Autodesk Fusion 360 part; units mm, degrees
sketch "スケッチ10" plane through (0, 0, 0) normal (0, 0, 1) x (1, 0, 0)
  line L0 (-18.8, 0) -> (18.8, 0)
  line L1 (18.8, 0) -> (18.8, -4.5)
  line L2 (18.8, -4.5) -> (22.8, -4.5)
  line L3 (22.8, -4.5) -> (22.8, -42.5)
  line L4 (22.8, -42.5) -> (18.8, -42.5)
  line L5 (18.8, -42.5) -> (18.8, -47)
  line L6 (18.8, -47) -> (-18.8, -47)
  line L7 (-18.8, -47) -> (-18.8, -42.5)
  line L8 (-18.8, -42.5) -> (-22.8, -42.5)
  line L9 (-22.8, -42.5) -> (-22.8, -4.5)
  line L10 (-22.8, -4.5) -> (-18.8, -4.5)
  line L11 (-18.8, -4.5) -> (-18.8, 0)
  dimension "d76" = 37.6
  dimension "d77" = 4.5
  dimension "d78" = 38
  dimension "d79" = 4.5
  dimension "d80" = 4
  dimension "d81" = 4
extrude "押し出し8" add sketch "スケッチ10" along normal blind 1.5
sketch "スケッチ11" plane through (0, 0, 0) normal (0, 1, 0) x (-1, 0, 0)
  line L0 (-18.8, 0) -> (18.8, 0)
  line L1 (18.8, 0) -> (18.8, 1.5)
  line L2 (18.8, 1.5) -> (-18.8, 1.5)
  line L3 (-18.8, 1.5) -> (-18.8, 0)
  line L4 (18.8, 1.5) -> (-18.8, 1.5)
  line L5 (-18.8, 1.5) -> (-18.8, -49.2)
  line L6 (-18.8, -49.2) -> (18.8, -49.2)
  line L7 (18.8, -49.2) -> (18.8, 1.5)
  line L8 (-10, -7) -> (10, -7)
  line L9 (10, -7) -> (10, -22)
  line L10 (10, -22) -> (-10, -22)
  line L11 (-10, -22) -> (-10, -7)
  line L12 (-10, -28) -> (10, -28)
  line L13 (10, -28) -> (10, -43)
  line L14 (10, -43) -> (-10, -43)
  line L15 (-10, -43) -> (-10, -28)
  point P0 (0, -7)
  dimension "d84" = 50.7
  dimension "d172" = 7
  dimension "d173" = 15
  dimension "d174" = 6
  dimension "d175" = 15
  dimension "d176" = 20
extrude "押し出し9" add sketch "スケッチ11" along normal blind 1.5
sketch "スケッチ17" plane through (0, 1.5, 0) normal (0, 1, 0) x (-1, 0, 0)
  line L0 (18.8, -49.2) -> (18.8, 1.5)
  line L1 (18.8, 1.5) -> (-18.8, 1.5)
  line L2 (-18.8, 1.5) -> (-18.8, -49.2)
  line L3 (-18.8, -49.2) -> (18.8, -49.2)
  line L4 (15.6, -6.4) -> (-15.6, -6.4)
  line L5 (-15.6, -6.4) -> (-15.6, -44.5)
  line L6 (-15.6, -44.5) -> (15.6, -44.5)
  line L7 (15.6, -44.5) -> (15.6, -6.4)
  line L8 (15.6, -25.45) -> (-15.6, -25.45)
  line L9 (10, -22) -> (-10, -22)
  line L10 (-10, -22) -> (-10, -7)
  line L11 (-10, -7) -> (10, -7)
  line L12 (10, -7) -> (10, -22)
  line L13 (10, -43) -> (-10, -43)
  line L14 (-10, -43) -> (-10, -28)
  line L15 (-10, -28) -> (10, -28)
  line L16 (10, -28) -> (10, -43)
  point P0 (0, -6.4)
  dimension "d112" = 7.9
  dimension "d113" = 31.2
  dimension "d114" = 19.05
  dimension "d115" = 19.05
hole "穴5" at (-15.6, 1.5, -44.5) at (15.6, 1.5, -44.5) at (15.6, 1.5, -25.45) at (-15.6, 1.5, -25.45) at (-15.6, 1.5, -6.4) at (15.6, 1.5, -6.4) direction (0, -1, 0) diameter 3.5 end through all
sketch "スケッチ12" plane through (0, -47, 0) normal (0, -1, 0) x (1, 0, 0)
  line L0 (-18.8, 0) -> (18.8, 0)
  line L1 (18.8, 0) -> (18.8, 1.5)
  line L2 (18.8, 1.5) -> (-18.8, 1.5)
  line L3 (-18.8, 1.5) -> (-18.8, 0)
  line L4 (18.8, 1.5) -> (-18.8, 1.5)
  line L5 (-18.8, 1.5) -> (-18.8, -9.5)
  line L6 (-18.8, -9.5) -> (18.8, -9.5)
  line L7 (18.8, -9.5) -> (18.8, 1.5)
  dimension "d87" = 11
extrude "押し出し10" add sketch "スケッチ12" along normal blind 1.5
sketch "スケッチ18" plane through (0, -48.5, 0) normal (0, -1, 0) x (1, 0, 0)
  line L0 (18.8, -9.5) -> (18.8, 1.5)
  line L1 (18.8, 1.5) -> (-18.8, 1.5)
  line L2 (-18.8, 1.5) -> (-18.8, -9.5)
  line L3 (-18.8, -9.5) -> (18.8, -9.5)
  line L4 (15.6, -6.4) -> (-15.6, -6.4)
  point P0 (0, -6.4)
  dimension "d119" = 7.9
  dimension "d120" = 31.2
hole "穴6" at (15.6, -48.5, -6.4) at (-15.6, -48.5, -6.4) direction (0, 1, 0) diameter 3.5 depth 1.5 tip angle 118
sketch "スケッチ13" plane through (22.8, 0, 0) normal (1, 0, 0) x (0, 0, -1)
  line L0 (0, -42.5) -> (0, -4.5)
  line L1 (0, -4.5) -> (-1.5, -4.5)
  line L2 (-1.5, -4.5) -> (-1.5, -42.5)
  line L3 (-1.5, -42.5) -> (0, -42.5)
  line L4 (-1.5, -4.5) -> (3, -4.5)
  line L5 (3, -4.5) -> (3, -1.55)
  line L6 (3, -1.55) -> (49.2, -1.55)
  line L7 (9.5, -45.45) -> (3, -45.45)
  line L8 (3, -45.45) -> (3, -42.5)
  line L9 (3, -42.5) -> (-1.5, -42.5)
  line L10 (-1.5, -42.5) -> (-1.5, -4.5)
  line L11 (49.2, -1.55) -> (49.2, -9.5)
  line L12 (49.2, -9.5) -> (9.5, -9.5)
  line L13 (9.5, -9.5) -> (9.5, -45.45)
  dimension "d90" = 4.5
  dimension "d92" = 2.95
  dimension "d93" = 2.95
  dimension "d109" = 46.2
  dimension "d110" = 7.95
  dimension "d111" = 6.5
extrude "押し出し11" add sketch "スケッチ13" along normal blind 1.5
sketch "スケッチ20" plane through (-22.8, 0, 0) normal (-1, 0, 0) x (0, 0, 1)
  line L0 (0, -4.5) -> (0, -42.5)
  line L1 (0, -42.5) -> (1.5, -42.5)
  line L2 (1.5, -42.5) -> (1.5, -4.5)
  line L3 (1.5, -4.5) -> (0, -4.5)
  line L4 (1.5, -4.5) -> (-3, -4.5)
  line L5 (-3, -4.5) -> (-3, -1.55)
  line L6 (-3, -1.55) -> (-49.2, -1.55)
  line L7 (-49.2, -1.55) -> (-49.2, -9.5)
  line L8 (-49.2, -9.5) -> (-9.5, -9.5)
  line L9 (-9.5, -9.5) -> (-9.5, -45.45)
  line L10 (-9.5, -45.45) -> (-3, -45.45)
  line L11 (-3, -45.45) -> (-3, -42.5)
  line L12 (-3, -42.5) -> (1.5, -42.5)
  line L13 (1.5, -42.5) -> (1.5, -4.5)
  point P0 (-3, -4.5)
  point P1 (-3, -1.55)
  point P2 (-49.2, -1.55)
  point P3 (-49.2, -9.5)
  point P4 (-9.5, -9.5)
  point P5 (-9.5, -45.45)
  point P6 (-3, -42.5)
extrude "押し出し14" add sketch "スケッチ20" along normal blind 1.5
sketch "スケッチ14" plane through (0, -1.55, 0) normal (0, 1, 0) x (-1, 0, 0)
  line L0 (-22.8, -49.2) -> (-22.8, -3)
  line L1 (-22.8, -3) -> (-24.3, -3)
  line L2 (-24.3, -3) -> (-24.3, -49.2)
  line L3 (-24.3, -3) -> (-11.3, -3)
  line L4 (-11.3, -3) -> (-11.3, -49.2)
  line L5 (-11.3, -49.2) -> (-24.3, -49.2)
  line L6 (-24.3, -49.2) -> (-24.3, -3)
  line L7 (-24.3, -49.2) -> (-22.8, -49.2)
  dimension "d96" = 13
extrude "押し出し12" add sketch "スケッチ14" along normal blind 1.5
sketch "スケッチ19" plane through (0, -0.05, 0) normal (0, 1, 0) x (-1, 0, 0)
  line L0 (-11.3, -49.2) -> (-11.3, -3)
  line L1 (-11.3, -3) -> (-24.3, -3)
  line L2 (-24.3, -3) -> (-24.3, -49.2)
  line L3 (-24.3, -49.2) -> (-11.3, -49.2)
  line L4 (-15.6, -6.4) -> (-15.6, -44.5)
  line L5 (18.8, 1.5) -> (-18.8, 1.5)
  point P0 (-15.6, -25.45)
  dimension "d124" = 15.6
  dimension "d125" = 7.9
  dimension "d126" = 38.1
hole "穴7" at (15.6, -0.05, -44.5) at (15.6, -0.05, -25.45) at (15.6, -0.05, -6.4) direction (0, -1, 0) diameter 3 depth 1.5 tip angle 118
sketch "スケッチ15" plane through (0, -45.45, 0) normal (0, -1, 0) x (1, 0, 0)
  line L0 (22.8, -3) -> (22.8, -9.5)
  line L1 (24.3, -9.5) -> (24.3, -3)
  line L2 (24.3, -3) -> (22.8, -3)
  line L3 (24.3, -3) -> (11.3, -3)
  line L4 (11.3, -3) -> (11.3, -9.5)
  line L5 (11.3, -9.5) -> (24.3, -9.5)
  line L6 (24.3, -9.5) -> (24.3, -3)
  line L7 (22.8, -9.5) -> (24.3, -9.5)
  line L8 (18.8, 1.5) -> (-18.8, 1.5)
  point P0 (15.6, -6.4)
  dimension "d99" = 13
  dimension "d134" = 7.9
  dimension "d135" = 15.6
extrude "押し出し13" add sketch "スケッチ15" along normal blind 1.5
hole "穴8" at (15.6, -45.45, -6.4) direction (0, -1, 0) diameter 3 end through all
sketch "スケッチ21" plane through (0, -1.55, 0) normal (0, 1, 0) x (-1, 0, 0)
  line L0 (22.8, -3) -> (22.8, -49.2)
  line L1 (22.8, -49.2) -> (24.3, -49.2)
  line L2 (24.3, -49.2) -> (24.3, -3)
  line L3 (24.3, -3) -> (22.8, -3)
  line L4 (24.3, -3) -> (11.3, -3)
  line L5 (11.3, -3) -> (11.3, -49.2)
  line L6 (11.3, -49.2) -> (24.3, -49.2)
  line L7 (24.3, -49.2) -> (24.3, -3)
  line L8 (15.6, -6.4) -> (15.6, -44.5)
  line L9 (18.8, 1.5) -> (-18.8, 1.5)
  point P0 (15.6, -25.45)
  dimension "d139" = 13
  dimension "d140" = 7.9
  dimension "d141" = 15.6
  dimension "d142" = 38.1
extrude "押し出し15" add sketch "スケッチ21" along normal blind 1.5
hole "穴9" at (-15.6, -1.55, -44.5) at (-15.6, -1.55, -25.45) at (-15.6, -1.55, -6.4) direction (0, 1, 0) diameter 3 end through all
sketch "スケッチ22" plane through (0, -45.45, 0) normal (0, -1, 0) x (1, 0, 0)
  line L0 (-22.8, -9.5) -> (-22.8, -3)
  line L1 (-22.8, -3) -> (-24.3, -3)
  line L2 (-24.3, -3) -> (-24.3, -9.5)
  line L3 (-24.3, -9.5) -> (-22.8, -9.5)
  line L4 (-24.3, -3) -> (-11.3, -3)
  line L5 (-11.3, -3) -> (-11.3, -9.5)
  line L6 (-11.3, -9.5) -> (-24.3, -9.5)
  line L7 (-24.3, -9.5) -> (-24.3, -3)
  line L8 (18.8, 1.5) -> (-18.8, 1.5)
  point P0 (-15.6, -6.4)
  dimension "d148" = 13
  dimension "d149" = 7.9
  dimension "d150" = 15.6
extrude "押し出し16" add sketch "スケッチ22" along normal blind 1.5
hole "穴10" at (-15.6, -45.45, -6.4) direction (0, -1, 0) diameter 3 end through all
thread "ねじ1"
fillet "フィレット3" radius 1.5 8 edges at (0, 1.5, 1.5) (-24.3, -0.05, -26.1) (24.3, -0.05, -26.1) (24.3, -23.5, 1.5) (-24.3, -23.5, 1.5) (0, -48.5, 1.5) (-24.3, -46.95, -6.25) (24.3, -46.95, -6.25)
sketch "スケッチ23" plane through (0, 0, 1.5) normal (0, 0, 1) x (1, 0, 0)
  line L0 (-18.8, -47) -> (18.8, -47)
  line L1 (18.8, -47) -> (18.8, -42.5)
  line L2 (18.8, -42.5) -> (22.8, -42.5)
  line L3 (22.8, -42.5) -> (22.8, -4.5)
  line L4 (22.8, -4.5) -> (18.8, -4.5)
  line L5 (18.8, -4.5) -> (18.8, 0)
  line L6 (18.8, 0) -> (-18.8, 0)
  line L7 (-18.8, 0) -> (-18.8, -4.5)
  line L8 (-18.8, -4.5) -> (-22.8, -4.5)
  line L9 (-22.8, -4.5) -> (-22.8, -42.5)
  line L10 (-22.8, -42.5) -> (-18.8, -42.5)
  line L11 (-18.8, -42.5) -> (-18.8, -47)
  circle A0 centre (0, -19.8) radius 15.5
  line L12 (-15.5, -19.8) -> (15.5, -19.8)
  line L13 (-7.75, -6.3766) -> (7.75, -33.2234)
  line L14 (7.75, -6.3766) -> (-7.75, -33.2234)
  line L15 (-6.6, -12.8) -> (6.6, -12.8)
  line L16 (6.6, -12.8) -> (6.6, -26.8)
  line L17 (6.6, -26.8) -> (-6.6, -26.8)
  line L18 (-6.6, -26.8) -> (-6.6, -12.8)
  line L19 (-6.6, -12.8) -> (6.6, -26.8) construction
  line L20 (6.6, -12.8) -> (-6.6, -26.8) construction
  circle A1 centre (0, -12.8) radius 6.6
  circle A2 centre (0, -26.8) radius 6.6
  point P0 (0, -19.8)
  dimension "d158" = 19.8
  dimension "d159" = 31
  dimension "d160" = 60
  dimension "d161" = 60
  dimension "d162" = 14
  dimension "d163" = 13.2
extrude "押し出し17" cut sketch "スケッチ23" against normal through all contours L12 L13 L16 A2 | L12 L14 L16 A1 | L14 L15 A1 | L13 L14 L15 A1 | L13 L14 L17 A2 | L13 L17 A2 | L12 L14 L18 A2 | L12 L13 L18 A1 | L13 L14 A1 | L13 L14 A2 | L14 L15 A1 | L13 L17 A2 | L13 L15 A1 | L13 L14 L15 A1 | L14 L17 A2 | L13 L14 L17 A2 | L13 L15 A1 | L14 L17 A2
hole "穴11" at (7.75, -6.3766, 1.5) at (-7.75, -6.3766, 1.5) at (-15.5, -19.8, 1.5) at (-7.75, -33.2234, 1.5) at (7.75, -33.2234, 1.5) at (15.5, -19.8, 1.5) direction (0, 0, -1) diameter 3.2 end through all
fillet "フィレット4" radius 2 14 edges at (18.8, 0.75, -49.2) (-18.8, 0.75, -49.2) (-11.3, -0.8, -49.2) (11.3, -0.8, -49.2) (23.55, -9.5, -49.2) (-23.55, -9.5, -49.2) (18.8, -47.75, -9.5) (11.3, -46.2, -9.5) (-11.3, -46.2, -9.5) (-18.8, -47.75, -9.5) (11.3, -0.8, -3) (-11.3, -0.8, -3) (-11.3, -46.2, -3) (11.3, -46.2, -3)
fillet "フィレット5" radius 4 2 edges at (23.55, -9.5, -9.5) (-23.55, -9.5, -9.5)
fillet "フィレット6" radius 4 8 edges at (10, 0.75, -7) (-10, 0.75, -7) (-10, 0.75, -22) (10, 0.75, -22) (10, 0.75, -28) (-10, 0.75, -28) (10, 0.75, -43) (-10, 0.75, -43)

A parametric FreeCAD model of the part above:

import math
import FreeCAD as App
import Part
import Sketcher
Q = App.Units.Quantity


def edges_at(feature, points):
    """Names of the edges that pass closest to the given points."""
    edges = feature.Shape.Edges
    near = lambda p: min(range(len(edges)), key=lambda i: edges[i].distToShape(Part.Vertex(*p))[0])
    return sorted({f"Edge{near(p) + 1}" for p in points})

doc = App.newDocument("Part")
body = doc.addObject("PartDesign::Body", "Body")

sketch1 = body.newObject("Sketcher::SketchObject", "Sketch")
sketch1.AttachmentSupport = (doc.getObject("XY_Plane"), [""])
sketch1.MapMode = "FlatFace"
sketch1.addGeometry([
    Part.LineSegment(App.Vector(18.8, 0, 0), App.Vector(-18.8, 0, 0)),
    Part.LineSegment(App.Vector(-18.8, 0, 0), App.Vector(-18.8, -4.5, 0)),
    Part.LineSegment(App.Vector(-18.8, -4.5, 0), App.Vector(-22.8, -4.5, 0)),
    Part.LineSegment(App.Vector(-22.8, -4.5, 0), App.Vector(-22.8, -42.5, 0)),
    Part.LineSegment(App.Vector(-22.8, -42.5, 0), App.Vector(-18.8, -42.5, 0)),
    Part.LineSegment(App.Vector(-18.8, -42.5, 0), App.Vector(-18.8, -47, 0)),
    Part.LineSegment(App.Vector(-18.8, -47, 0), App.Vector(18.8, -47, 0)),
    Part.LineSegment(App.Vector(18.8, -47, 0), App.Vector(18.8, -42.5, 0)),
    Part.LineSegment(App.Vector(18.8, -42.5, 0), App.Vector(22.8, -42.5, 0)),
    Part.LineSegment(App.Vector(22.8, -42.5, 0), App.Vector(22.8, -4.5, 0)),
    Part.LineSegment(App.Vector(22.8, -4.5, 0), App.Vector(18.8, -4.5, 0)),
    Part.LineSegment(App.Vector(18.8, -4.5, 0), App.Vector(18.8, 0, 0)),
], False)
sketch1.addConstraint([
    Sketcher.Constraint("Coincident", 0, 2, 1, 1),
    Sketcher.Constraint("Coincident", 1, 2, 2, 1),
    Sketcher.Constraint("Coincident", 2, 2, 3, 1),
    Sketcher.Constraint("Coincident", 3, 2, 4, 1),
    Sketcher.Constraint("Coincident", 4, 2, 5, 1),
    Sketcher.Constraint("Coincident", 5, 2, 6, 1),
    Sketcher.Constraint("Coincident", 6, 2, 7, 1),
    Sketcher.Constraint("Coincident", 7, 2, 8, 1),
    Sketcher.Constraint("Coincident", 8, 2, 9, 1),
    Sketcher.Constraint("Coincident", 9, 2, 10, 1),
    Sketcher.Constraint("Coincident", 10, 2, 11, 1),
    Sketcher.Constraint("Coincident", 11, 2, 0, 1),
    Sketcher.Constraint("Horizontal", 0),
    Sketcher.Constraint("Vertical", 1),
    Sketcher.Constraint("Horizontal", 2),
    Sketcher.Constraint("Vertical", 3),
    Sketcher.Constraint("Horizontal", 4),
    Sketcher.Constraint("Vertical", 5),
    Sketcher.Constraint("Horizontal", 6),
    Sketcher.Constraint("Vertical", 7),
    Sketcher.Constraint("Horizontal", 8),
    Sketcher.Constraint("Vertical", 9),
    Sketcher.Constraint("Horizontal", 10),
    Sketcher.Constraint("Vertical", 11),
    Sketcher.Constraint("Symmetric", 0, 2, 11, 2, -1, 1),
    Sketcher.Constraint("Symmetric", 4, 2, 7, 2, -2),
    Sketcher.Constraint("Symmetric", 2, 2, 9, 2, -2),
    Sketcher.Constraint("Vertical", 1, 2, 4, 2),
    Sketcher.Constraint("Equal", 1, 5),
    Sketcher.Constraint("DistanceX", 2, 2, 2, 1, Q("4 mm")),
    Sketcher.Constraint("DistanceY", 3, 2, 3, 1, Q("38 mm")),
    Sketcher.Constraint("DistanceX", 0, 2, 0, 1, Q("37.6 mm")),
    Sketcher.Constraint("DistanceY", 1, 2, 1, 1, Q("4.5 mm")),
])
pad1 = body.newObject("PartDesign::Pad", "Pad")
pad1.Profile = sketch1
pad1.Length = 1.5

sketch2 = body.newObject("Sketcher::SketchObject", "Sketch001")
sketch2.AttachmentSupport = (doc.getObject("XZ_Plane"), [""])
sketch2.MapMode = "FlatFace"
sketch2.addGeometry([
    Part.LineSegment(App.Vector(19, 2, 0), App.Vector(19, -49, 0)),
    Part.LineSegment(App.Vector(19, -49, 0), App.Vector(-19, -49, 0)),
    Part.LineSegment(App.Vector(-19, -49, 0), App.Vector(-19, 2, 0)),
    Part.LineSegment(App.Vector(-19, 2, 0), App.Vector(19, 2, 0)),
    Part.LineSegment(App.Vector(10, -7, 0), App.Vector(-10, -7, 0)),
    Part.LineSegment(App.Vector(-10, -7, 0), App.Vector(-10, -22, 0)),
    Part.LineSegment(App.Vector(-10, -22, 0), App.Vector(10, -22, 0)),
    Part.LineSegment(App.Vector(10, -22, 0), App.Vector(10, -7, 0)),
    Part.LineSegment(App.Vector(10, -43, 0), App.Vector(10, -28, 0)),
    Part.LineSegment(App.Vector(10, -28, 0), App.Vector(-10, -28, 0)),
    Part.LineSegment(App.Vector(-10, -28, 0), App.Vector(-10, -43, 0)),
    Part.LineSegment(App.Vector(-10, -43, 0), App.Vector(10, -43, 0)),
], False)
sketch2.addConstraint([
    Sketcher.Constraint("Coincident", 0, 2, 1, 1),
    Sketcher.Constraint("Coincident", 1, 2, 2, 1),
    Sketcher.Constraint("Coincident", 2, 2, 3, 1),
    Sketcher.Constraint("Coincident", 3, 2, 0, 1),
    Sketcher.Constraint("Coincident", 4, 2, 5, 1),
    Sketcher.Constraint("Coincident", 5, 2, 6, 1),
    Sketcher.Constraint("Coincident", 6, 2, 7, 1),
    Sketcher.Constraint("Coincident", 7, 2, 4, 1),
    Sketcher.Constraint("Coincident", 8, 2, 9, 1),
    Sketcher.Constraint("Coincident", 9, 2, 10, 1),
    Sketcher.Constraint("Coincident", 10, 2, 11, 1),
    Sketcher.Constraint("Coincident", 11, 2, 8, 1),
    Sketcher.Constraint("Vertical", 0),
    Sketcher.Constraint("Horizontal", 1),
    Sketcher.Constraint("Vertical", 2),
    Sketcher.Constraint("Horizontal", 3),
    Sketcher.Constraint("Horizontal", 4),
    Sketcher.Constraint("Vertical", 5),
    Sketcher.Constraint("Horizontal", 6),
    Sketcher.Constraint("Vertical", 7),
    Sketcher.Constraint("Vertical", 8),
    Sketcher.Constraint("Horizontal", 9),
    Sketcher.Constraint("Vertical", 10),
    Sketcher.Constraint("Horizontal", 11),
    Sketcher.Constraint("Vertical", 7, 2, 8, 2),
    Sketcher.Constraint("Vertical", 5, 2, 9, 2),
    Sketcher.Constraint("Equal", 7, 8),
    Sketcher.Constraint("DistanceX", 4, 2, 4, 1, Q("20 mm")),
    Sketcher.Constraint("DistanceY", 5, 2, 5, 1, Q("15 mm")),
    Sketcher.Constraint("DistanceY", 0, 2, 0, 1, Q("50.7 mm")),
    Sketcher.Constraint("DistanceY", 4, 2, -1, 1, Q("7 mm")),
    Sketcher.Constraint("DistanceY", 8, 2, 6, 2, Q("6 mm")),
    Sketcher.Constraint("DistanceX", 1, 2, 1, 1, Q("37.6 mm")),
    Sketcher.Constraint("DistanceX", 4, 2, -1, 1, Q("10 mm")),
    Sketcher.Constraint("DistanceX", -1, 1, 0, 2, Q("18.8 mm")),
    Sketcher.Constraint("DistanceY", 0, 2, -1, 1, Q("49.2 mm")),
])
pad2 = body.newObject("PartDesign::Pad", "Pad001")
pad2.Profile = sketch2
pad2.Length = 1.5
pad2.Reversed = True

sketch3 = body.newObject("Sketcher::SketchObject", "Sketch002")
sketch3.AttachmentSupport = (doc.getObject("XZ_Plane"), [""])
sketch3.MapMode = "FlatFace"
sketch3.AttachmentOffset = App.Placement(App.Vector(0, 0, -1.5), App.Rotation())
sketch3.addGeometry([
    Part.Circle(App.Vector(-15.6, -44.5, 0), App.Vector(0, 0, 1), 1.8),
    Part.Circle(App.Vector(15.6, -44.5, 0), App.Vector(0, 0, 1), 1.8),
    Part.Circle(App.Vector(15.6, -25.4, 0), App.Vector(0, 0, 1), 1.8),
    Part.Circle(App.Vector(-15.6, -25.4, 0), App.Vector(0, 0, 1), 1.8),
    Part.Circle(App.Vector(-15.6, -6.4, 0), App.Vector(0, 0, 1), 1.8),
    Part.Circle(App.Vector(15.6, -6.4, 0), App.Vector(0, 0, 1), 1.8),
], False)
sketch3.addConstraint([
    Sketcher.Constraint("Equal", 0, 1),
    Sketcher.Constraint("Equal", 1, 2),
    Sketcher.Constraint("Equal", 2, 3),
    Sketcher.Constraint("Equal", 3, 4),
    Sketcher.Constraint("Equal", 4, 5),
    Sketcher.Constraint("Symmetric", 0, 3, 1, 3, -2),
    Sketcher.Constraint("Symmetric", 2, 3, 3, 3, -2),
    Sketcher.Constraint("Symmetric", 4, 3, 5, 3, -2),
    Sketcher.Constraint("Vertical", 1, 3, 2, 3),
    Sketcher.Constraint("Vertical", 3, 3, 4, 3),
    Sketcher.Constraint("Diameter", 0, Q("3.5 mm")),
    Sketcher.Constraint("DistanceX", 0, 3, -1, 1, Q("15.6 mm")),
    Sketcher.Constraint("DistanceY", 0, 3, -1, 1, Q("44.5 mm")),
    Sketcher.Constraint("DistanceY", 4, 3, -1, 1, Q("6.4 mm")),
    Sketcher.Constraint("DistanceY", 2, 3, -1, 1, Q("25.45 mm")),
])
doc.recompute()
hole = body.newObject("PartDesign::Hole", "Hole")
hole.Profile = sketch3
hole.ThreadType = "None"
hole.Diameter = 3.5
hole.DepthType = "ThroughAll"
hole.Reversed = True

sketch4 = body.newObject("Sketcher::SketchObject", "Sketch003")
sketch4.AttachmentSupport = (doc.getObject("XZ_Plane"), [""])
sketch4.MapMode = "FlatFace"
sketch4.AttachmentOffset = App.Placement(App.Vector(0, 0, 47), App.Rotation())
sketch4.addGeometry([
    Part.LineSegment(App.Vector(-19, 2, 0), App.Vector(-19, -10, 0)),
    Part.LineSegment(App.Vector(-19, -10, 0), App.Vector(19, -10, 0)),
    Part.LineSegment(App.Vector(19, -10, 0), App.Vector(19, 2, 0)),
    Part.LineSegment(App.Vector(19, 2, 0), App.Vector(-19, 2, 0)),
], False)
sketch4.addConstraint([
    Sketcher.Constraint("Coincident", 0, 2, 1, 1),
    Sketcher.Constraint("Coincident", 1, 2, 2, 1),
    Sketcher.Constraint("Coincident", 2, 2, 3, 1),
    Sketcher.Constraint("Coincident", 3, 2, 0, 1),
    Sketcher.Constraint("Vertical", 0),
    Sketcher.Constraint("Horizontal", 1),
    Sketcher.Constraint("Vertical", 2),
    Sketcher.Constraint("Horizontal", 3),
    Sketcher.Constraint("DistanceY", 0, 2, 0, 1, Q("11 mm")),
    Sketcher.Constraint("DistanceX", 1, 1, 1, 2, Q("37.6 mm")),
    Sketcher.Constraint("DistanceX", 0, 2, -1, 1, Q("18.8 mm")),
    Sketcher.Constraint("DistanceY", 0, 2, -1, 1, Q("9.5 mm")),
])
pad3 = body.newObject("PartDesign::Pad", "Pad002")
pad3.Profile = sketch4
pad3.Length = 1.5

sketch5 = body.newObject("Sketcher::SketchObject", "Sketch004")
sketch5.AttachmentSupport = (doc.getObject("XZ_Plane"), [""])
sketch5.MapMode = "FlatFace"
sketch5.AttachmentOffset = App.Placement(App.Vector(0, 0, 48.5), App.Rotation())
sketch5.addGeometry([
    Part.Circle(App.Vector(15.6, -6.4, 0), App.Vector(0, 0, 1), 1.8),
    Part.Circle(App.Vector(-15.6, -6.4, 0), App.Vector(0, 0, 1), 1.8),
], False)
sketch5.addConstraint([
    Sketcher.Constraint("Equal", 0, 1),
    Sketcher.Constraint("Symmetric", 0, 3, 1, 3, -2),
    Sketcher.Constraint("Diameter", 0, Q("3.5 mm")),
    Sketcher.Constraint("DistanceX", -1, 1, 0, 3, Q("15.6 mm")),
    Sketcher.Constraint("DistanceY", 0, 3, -1, 1, Q("6.4 mm")),
])
doc.recompute()
hole2 = body.newObject("PartDesign::Hole", "Hole001")
hole2.Profile = sketch5
hole2.ThreadType = "None"
hole2.Diameter = 3.5
hole2.DepthType = "Dimension"
hole2.Depth = 1.5
hole2.DrillPoint = "Angled"
hole2.DrillPointAngle = 118

sketch6 = body.newObject("Sketcher::SketchObject", "Sketch005")
sketch6.AttachmentSupport = (doc.getObject("YZ_Plane"), [""])
sketch6.MapMode = "FlatFace"
sketch6.AttachmentOffset = App.Placement(App.Vector(0, 0, 22.8), App.Rotation())
sketch6.addGeometry([
    Part.LineSegment(App.Vector(-42.5, 1.5, 0), App.Vector(-42.5, -3, 0)),
    Part.LineSegment(App.Vector(-42.5, -3, 0), App.Vector(-45.5, -3, 0)),
    Part.LineSegment(App.Vector(-45.5, -3, 0), App.Vector(-45.5, -9.5, 0)),
    Part.LineSegment(App.Vector(-45.5, -9.5, 0), App.Vector(-9.5, -9.5, 0)),
    Part.LineSegment(App.Vector(-9.5, -9.5, 0), App.Vector(-9.5, -49.2, 0)),
    Part.LineSegment(App.Vector(-9.5, -49.2, 0), App.Vector(-1.6, -49.2, 0)),
    Part.LineSegment(App.Vector(-1.6, -49.2, 0), App.Vector(-1.6, -3, 0)),
    Part.LineSegment(App.Vector(-1.6, -3, 0), App.Vector(-4.5, -3, 0)),
    Part.LineSegment(App.Vector(-4.5, -3, 0), App.Vector(-4.5, 1.5, 0)),
    Part.LineSegment(App.Vector(-4.5, 1.5, 0), App.Vector(-42.5, 1.5, 0)),
], False)
sketch6.addConstraint([
    Sketcher.Constraint("Coincident", 0, 2, 1, 1),
    Sketcher.Constraint("Coincident", 1, 2, 2, 1),
    Sketcher.Constraint("Coincident", 2, 2, 3, 1),
    Sketcher.Constraint("Coincident", 3, 2, 4, 1),
    Sketcher.Constraint("Coincident", 4, 2, 5, 1),
    Sketcher.Constraint("Coincident", 5, 2, 6, 1),
    Sketcher.Constraint("Coincident", 6, 2, 7, 1),
    Sketcher.Constraint("Coincident", 7, 2, 8, 1),
    Sketcher.Constraint("Coincident", 8, 2, 9, 1),
    Sketcher.Constraint("Coincident", 9, 2, 0, 1),
    Sketcher.Constraint("Vertical", 0),
    Sketcher.Constraint("Horizontal", 1),
    Sketcher.Constraint("Vertical", 2),
    Sketcher.Constraint("Horizontal", 3),
    Sketcher.Constraint("Vertical", 4),
    Sketcher.Constraint("Horizontal", 5),
    Sketcher.Constraint("Vertical", 6),
    Sketcher.Constraint("Horizontal", 7),
    Sketcher.Constraint("Vertical", 8),
    Sketcher.Constraint("Horizontal", 9),
    Sketcher.Constraint("Horizontal", 1, 2, 6, 2),
    Sketcher.Constraint("Equal", 1, 7),
    Sketcher.Constraint("DistanceY", 0, 2, 0, 1, Q("4.5 mm")),
    Sketcher.Constraint("DistanceY", 2, 2, 2, 1, Q("6.5 mm")),
    Sketcher.Constraint("DistanceY", 6, 1, 6, 2, Q("46.2 mm")),
    Sketcher.Constraint("DistanceX", 1, 2, 1, 1, Q("2.95 mm")),
    Sketcher.Constraint("DistanceX", 5, 1, 5, 2, Q("7.95 mm")),
    Sketcher.Constraint("DistanceX", 7, 2, -1, 1, Q("4.5 mm")),
    Sketcher.Constraint("DistanceX", 9, 2, 9, 1, Q("38 mm")),
    Sketcher.Constraint("DistanceY", 0, 2, -1, 1, Q("3 mm")),
])
pad4 = body.newObject("PartDesign::Pad", "Pad003")
pad4.Profile = sketch6
pad4.Length = 1.5

sketch7 = body.newObject("Sketcher::SketchObject", "Sketch006")
sketch7.AttachmentSupport = (doc.getObject("YZ_Plane"), [""])
sketch7.MapMode = "FlatFace"
sketch7.AttachmentOffset = App.Placement(App.Vector(0, 0, -22.8), App.Rotation())
sketch7.addGeometry([
    Part.LineSegment(App.Vector(-4.5, 1.5, 0), App.Vector(-4.5, -3, 0)),
    Part.LineSegment(App.Vector(-4.5, -3, 0), App.Vector(-1.6, -3, 0)),
    Part.LineSegment(App.Vector(-1.6, -3, 0), App.Vector(-1.6, -49.2, 0)),
    Part.LineSegment(App.Vector(-1.6, -49.2, 0), App.Vector(-9.5, -49.2, 0)),
    Part.LineSegment(App.Vector(-9.5, -49.2, 0), App.Vector(-9.5, -9.5, 0)),
    Part.LineSegment(App.Vector(-9.5, -9.5, 0), App.Vector(-45.5, -9.5, 0)),
    Part.LineSegment(App.Vector(-45.5, -9.5, 0), App.Vector(-45.5, -3, 0)),
    Part.LineSegment(App.Vector(-45.5, -3, 0), App.Vector(-42.5, -3, 0)),
    Part.LineSegment(App.Vector(-42.5, -3, 0), App.Vector(-42.5, 1.5, 0)),
    Part.LineSegment(App.Vector(-42.5, 1.5, 0), App.Vector(-4.5, 1.5, 0)),
], False)
sketch7.addConstraint([
    Sketcher.Constraint("Coincident", 0, 2, 1, 1),
    Sketcher.Constraint("Coincident", 1, 2, 2, 1),
    Sketcher.Constraint("Coincident", 2, 2, 3, 1),
    Sketcher.Constraint("Coincident", 3, 2, 4, 1),
    Sketcher.Constraint("Coincident", 4, 2, 5, 1),
    Sketcher.Constraint("Coincident", 5, 2, 6, 1),
    Sketcher.Constraint("Coincident", 6, 2, 7, 1),
    Sketcher.Constraint("Coincident", 7, 2, 8, 1),
    Sketcher.Constraint("Coincident", 8, 2, 9, 1),
    Sketcher.Constraint("Coincident", 9, 2, 0, 1),
    Sketcher.Constraint("Vertical", 0),
    Sketcher.Constraint("Horizontal", 1),
    Sketcher.Constraint("Vertical", 2),
    Sketcher.Constraint("Horizontal", 3),
    Sketcher.Constraint("Vertical", 4),
    Sketcher.Constraint("Horizontal", 5),
    Sketcher.Constraint("Vertical", 6),
    Sketcher.Constraint("Horizontal", 7),
    Sketcher.Constraint("Vertical", 8),
    Sketcher.Constraint("Horizontal", 9),
    Sketcher.Constraint("Horizontal", 1, 2, 6, 2),
    Sketcher.Constraint("Equal", 1, 7),
    Sketcher.Constraint("DistanceX", 9, 1, 9, 2, Q("38 mm")),
    Sketcher.Constraint("DistanceY", 0, 2, 0, 1, Q("4.5 mm")),
    Sketcher.Constraint("DistanceY", 2, 2, 2, 1, Q("46.2 mm")),
    Sketcher.Constraint("DistanceY", 4, 1, 4, 2, Q("39.7 mm")),
    Sketcher.Constraint("DistanceY", 0, 2, -1, 1, Q("3 mm")),
    Sketcher.Constraint("DistanceX", 3, 2, 0, 2, Q("5 mm")),
    Sketcher.Constraint("DistanceX", 1, 1, 1, 2, Q("2.95 mm")),
    Sketcher.Constraint("DistanceX", 0, 2, -1, 1, Q("4.5 mm")),
])
pad5 = body.newObject("PartDesign::Pad", "Pad004")
pad5.Profile = sketch7
pad5.Length = 1.5
pad5.Reversed = True

sketch8 = body.newObject("Sketcher::SketchObject", "Sketch007")
sketch8.AttachmentSupport = (doc.getObject("XZ_Plane"), [""])
sketch8.MapMode = "FlatFace"
sketch8.AttachmentOffset = App.Placement(App.Vector(0, 0, 1.55), App.Rotation())
sketch8.addGeometry([
    Part.LineSegment(App.Vector(24, -49, 0), App.Vector(11, -49, 0)),
    Part.LineSegment(App.Vector(11, -49, 0), App.Vector(11, -3, 0)),
    Part.LineSegment(App.Vector(11, -3, 0), App.Vector(24, -3, 0)),
    Part.LineSegment(App.Vector(24, -3, 0), App.Vector(24, -49, 0)),
], False)
sketch8.addConstraint([
    Sketcher.Constraint("Coincident", 0, 2, 1, 1),
    Sketcher.Constraint("Coincident", 1, 2, 2, 1),
    Sketcher.Constraint("Coincident", 2, 2, 3, 1),
    Sketcher.Constraint("Coincident", 3, 2, 0, 1),
    Sketcher.Constraint("Horizontal", 0),
    Sketcher.Constraint("Vertical", 1),
    Sketcher.Constraint("Horizontal", 2),
    Sketcher.Constraint("Vertical", 3),
    Sketcher.Constraint("DistanceX", 0, 2, 0, 1, Q("13 mm")),
    Sketcher.Constraint("DistanceY", 1, 1, 1, 2, Q("46.2 mm")),
    Sketcher.Constraint("DistanceY", 1, 2, -1, 1, Q("3 mm")),
    Sketcher.Constraint("DistanceX", -1, 1, 0, 2, Q("11.3 mm")),
])
pad6 = body.newObject("PartDesign::Pad", "Pad005")
pad6.Profile = sketch8
pad6.Length = 1.5
pad6.Reversed = True

sketch9 = body.newObject("Sketcher::SketchObject", "Sketch008")
sketch9.AttachmentSupport = (doc.getObject("XZ_Plane"), [""])
sketch9.MapMode = "FlatFace"
sketch9.AttachmentOffset = App.Placement(App.Vector(0, 0, 0.05), App.Rotation())
sketch9.addGeometry([
    Part.Circle(App.Vector(15.6, -44.5, 0), App.Vector(0, 0, 1), 1.5),
    Part.Circle(App.Vector(15.6, -25.4, 0), App.Vector(0, 0, 1), 1.5),
    Part.Circle(App.Vector(15.6, -6.4, 0), App.Vector(0, 0, 1), 1.5),
], False)
sketch9.addConstraint([
    Sketcher.Constraint("Equal", 0, 1),
    Sketcher.Constraint("Equal", 1, 2),
    Sketcher.Constraint("Vertical", 0, 3, 1, 3),
    Sketcher.Constraint("Vertical", 1, 3, 2, 3),
    Sketcher.Constraint("Diameter", 0, Q("3 mm")),
    Sketcher.Constraint("DistanceX", -1, 1, 0, 3, Q("15.6 mm")),
    Sketcher.Constraint("DistanceY", 0, 3, -1, 1, Q("44.5 mm")),
    Sketcher.Constraint("DistanceY", 2, 3, -1, 1, Q("6.4 mm")),
    Sketcher.Constraint("DistanceY", 1, 3, -1, 1, Q("25.45 mm")),
])
doc.recompute()
hole3 = body.newObject("PartDesign::Hole", "Hole002")
hole3.Profile = sketch9
hole3.ThreadType = "None"
hole3.Diameter = 3
hole3.DepthType = "Dimension"
hole3.Depth = 1.5
hole3.DrillPoint = "Angled"
hole3.DrillPointAngle = 118
hole3.Reversed = True

sketch10 = body.newObject("Sketcher::SketchObject", "Sketch009")
sketch10.AttachmentSupport = (doc.getObject("XZ_Plane"), [""])
sketch10.MapMode = "FlatFace"
sketch10.AttachmentOffset = App.Placement(App.Vector(0, 0, 45.45), App.Rotation())
sketch10.addGeometry([
    Part.LineSegment(App.Vector(24, -3, 0), App.Vector(11, -3, 0)),
    Part.LineSegment(App.Vector(11, -3, 0), App.Vector(11, -10, 0)),
    Part.LineSegment(App.Vector(11, -10, 0), App.Vector(24, -10, 0)),
    Part.LineSegment(App.Vector(24, -10, 0), App.Vector(24, -3, 0)),
], False)
sketch10.addConstraint([
    Sketcher.Constraint("Coincident", 0, 2, 1, 1),
    Sketcher.Constraint("Coincident", 1, 2, 2, 1),
    Sketcher.Constraint("Coincident", 2, 2, 3, 1),
    Sketcher.Constraint("Coincident", 3, 2, 0, 1),
    Sketcher.Constraint("Horizontal", 0),
    Sketcher.Constraint("Vertical", 1),
    Sketcher.Constraint("Horizontal", 2),
    Sketcher.Constraint("Vertical", 3),
    Sketcher.Constraint("DistanceX", 0, 2, 0, 1, Q("13 mm")),
    Sketcher.Constraint("DistanceY", 1, 2, 1, 1, Q("6.5 mm")),
    Sketcher.Constraint("DistanceY", 0, 2, -1, 1, Q("3 mm")),
    Sketcher.Constraint("DistanceX", -1, 1, 0, 2, Q("11.3 mm")),
])
pad7 = body.newObject("PartDesign::Pad", "Pad006")
pad7.Profile = sketch10
pad7.Length = 1.5

sketch11 = body.newObject("Sketcher::SketchObject", "Sketch010")
sketch11.AttachmentSupport = (doc.getObject("XZ_Plane"), [""])
sketch11.MapMode = "FlatFace"
sketch11.AttachmentOffset = App.Placement(App.Vector(0, 0, 45.45), App.Rotation())
sketch11.addGeometry(Part.Circle(App.Vector(15.6, -6.4, 0), App.Vector(0, 0, 1), 1.5), False)
sketch11.addConstraint([
    Sketcher.Constraint("Diameter", 0, Q("3 mm")),
    Sketcher.Constraint("DistanceX", -1, 1, 0, 3, Q("15.6 mm")),
    Sketcher.Constraint("DistanceY", 0, 3, -1, 1, Q("6.4 mm")),
])
doc.recompute()
hole4 = body.newObject("PartDesign::Hole", "Hole003")
hole4.Profile = sketch11
hole4.ThreadType = "None"
hole4.Diameter = 3
hole4.DepthType = "ThroughAll"
hole4.Reversed = True

sketch12 = body.newObject("Sketcher::SketchObject", "Sketch011")
sketch12.AttachmentSupport = (doc.getObject("XZ_Plane"), [""])
sketch12.MapMode = "FlatFace"
sketch12.AttachmentOffset = App.Placement(App.Vector(0, 0, 1.55), App.Rotation())
sketch12.addGeometry([
    Part.LineSegment(App.Vector(-24, -3, 0), App.Vector(-11, -3, 0)),
    Part.LineSegment(App.Vector(-11, -3, 0), App.Vector(-11, -49, 0)),
    Part.LineSegment(App.Vector(-11, -49, 0), App.Vector(-24, -49, 0)),
    Part.LineSegment(App.Vector(-24, -49, 0), App.Vector(-24, -3, 0)),
], False)
sketch12.addConstraint([
    Sketcher.Constraint("Coincident", 0, 2, 1, 1),
    Sketcher.Constraint("Coincident", 1, 2, 2, 1),
    Sketcher.Constraint("Coincident", 2, 2, 3, 1),
    Sketcher.Constraint("Coincident", 3, 2, 0, 1),
    Sketcher.Constraint("Horizontal", 0),
    Sketcher.Constraint("Vertical", 1),
    Sketcher.Constraint("Horizontal", 2),
    Sketcher.Constraint("Vertical", 3),
    Sketcher.Constraint("DistanceX", 0, 1, 0, 2, Q("13 mm")),
    Sketcher.Constraint("DistanceY", 1, 2, 1, 1, Q("46.2 mm")),
    Sketcher.Constraint("DistanceY", 0, 2, -1, 1, Q("3 mm")),
    Sketcher.Constraint("DistanceX", 0, 2, -1, 1, Q("11.3 mm")),
])
pad8 = body.newObject("PartDesign::Pad", "Pad007")
pad8.Profile = sketch12
pad8.Length = 1.5
pad8.Reversed = True

sketch13 = body.newObject("Sketcher::SketchObject", "Sketch012")
sketch13.AttachmentSupport = (doc.getObject("XZ_Plane"), [""])
sketch13.MapMode = "FlatFace"
sketch13.AttachmentOffset = App.Placement(App.Vector(0, 0, 1.55), App.Rotation())
sketch13.addGeometry([
    Part.Circle(App.Vector(-15.6, -44.5, 0), App.Vector(0, 0, 1), 1.5),
    Part.Circle(App.Vector(-15.6, -25.4, 0), App.Vector(0, 0, 1), 1.5),
    Part.Circle(App.Vector(-15.6, -6.4, 0), App.Vector(0, 0, 1), 1.5),
], False)
sketch13.addConstraint([
    Sketcher.Constraint("Equal", 0, 1),
    Sketcher.Constraint("Equal", 1, 2),
    Sketcher.Constraint("Vertical", 0, 3, 1, 3),
    Sketcher.Constraint("Vertical", 1, 3, 2, 3),
    Sketcher.Constraint("Diameter", 0, Q("3 mm")),
    Sketcher.Constraint("DistanceX", 0, 3, -1, 1, Q("15.6 mm")),
    Sketcher.Constraint("DistanceY", 0, 3, -1, 1, Q("44.5 mm")),
    Sketcher.Constraint("DistanceY", 2, 3, -1, 1, Q("6.4 mm")),
    Sketcher.Constraint("DistanceY", 1, 3, -1, 1, Q("25.45 mm")),
])
doc.recompute()
hole5 = body.newObject("PartDesign::Hole", "Hole004")
hole5.Profile = sketch13
hole5.ThreadType = "None"
hole5.Diameter = 3
hole5.DepthType = "ThroughAll"

sketch14 = body.newObject("Sketcher::SketchObject", "Sketch013")
sketch14.AttachmentSupport = (doc.getObject("XZ_Plane"), [""])
sketch14.MapMode = "FlatFace"
sketch14.AttachmentOffset = App.Placement(App.Vector(0, 0, 45.45), App.Rotation())
sketch14.addGeometry([
    Part.LineSegment(App.Vector(-24, -10, 0), App.Vector(-11, -10, 0)),
    Part.LineSegment(App.Vector(-11, -10, 0), App.Vector(-11, -3, 0)),
    Part.LineSegment(App.Vector(-11, -3, 0), App.Vector(-24, -3, 0)),
    Part.LineSegment(App.Vector(-24, -3, 0), App.Vector(-24, -10, 0)),
], False)
sketch14.addConstraint([
    Sketcher.Constraint("Coincident", 0, 2, 1, 1),
    Sketcher.Constraint("Coincident", 1, 2, 2, 1),
    Sketcher.Constraint("Coincident", 2, 2, 3, 1),
    Sketcher.Constraint("Coincident", 3, 2, 0, 1),
    Sketcher.Constraint("Horizontal", 0),
    Sketcher.Constraint("Vertical", 1),
    Sketcher.Constraint("Horizontal", 2),
    Sketcher.Constraint("Vertical", 3),
    Sketcher.Constraint("DistanceX", 0, 1, 0, 2, Q("13 mm")),
    Sketcher.Constraint("DistanceY", 1, 1, 1, 2, Q("6.5 mm")),
    Sketcher.Constraint("DistanceY", 1, 2, -1, 1, Q("3 mm")),
    Sketcher.Constraint("DistanceX", 0, 2, -1, 1, Q("11.3 mm")),
])
pad9 = body.newObject("PartDesign::Pad", "Pad008")
pad9.Profile = sketch14
pad9.Length = 1.5

sketch15 = body.newObject("Sketcher::SketchObject", "Sketch014")
sketch15.AttachmentSupport = (doc.getObject("XZ_Plane"), [""])
sketch15.MapMode = "FlatFace"
sketch15.AttachmentOffset = App.Placement(App.Vector(0, 0, 45.45), App.Rotation())
sketch15.addGeometry(Part.Circle(App.Vector(-15.6, -6.4, 0), App.Vector(0, 0, 1), 1.5), False)
sketch15.addConstraint([
    Sketcher.Constraint("Diameter", 0, Q("3 mm")),
    Sketcher.Constraint("DistanceX", 0, 3, -1, 1, Q("15.6 mm")),
    Sketcher.Constraint("DistanceY", 0, 3, -1, 1, Q("6.4 mm")),
])
doc.recompute()
hole6 = body.newObject("PartDesign::Hole", "Hole005")
hole6.Profile = sketch15
hole6.ThreadType = "None"
hole6.Diameter = 3
hole6.DepthType = "ThroughAll"
hole6.Reversed = True
doc.recompute()

fillet = body.newObject("PartDesign::Fillet", "Fillet")
fillet.Base = (hole6, edges_at(hole6, [
    (0, 1.5, 1.5),
    (-24.3, -0.05, -26.1),
    (24.3, -0.05, -26.1),
    (24.3, -23.5, 1.5),
    (-24.3, -23.5, 1.5),
    (0, -48.5, 1.5),
    (-24.3, -46.95, -6.25),
    (24.3, -46.95, -6.25),
]))
fillet.Radius = 1.5

sketch16 = body.newObject("Sketcher::SketchObject", "Sketch015")
sketch16.AttachmentSupport = (doc.getObject("XY_Plane"), [""])
sketch16.MapMode = "FlatFace"
sketch16.AttachmentOffset = App.Placement(App.Vector(0, 0, 1.5), App.Rotation())
sketch16.addGeometry([
    Part.LineSegment(App.Vector(7, -27, 0), App.Vector(7, -13, 0)),
    Part.ArcOfCircle(Part.Circle(App.Vector(0, -13, 0), App.Vector(0, 0, 1), 7), math.radians(0), math.radians(180)),
    Part.LineSegment(App.Vector(-7, -13, 0), App.Vector(-7, -27, 0)),
    Part.ArcOfCircle(Part.Circle(App.Vector(0, -27, 0), App.Vector(0, 0, 1), 7), math.radians(180), math.radians(360)),
], False)
sketch16.addConstraint([
    Sketcher.Constraint("Tangent", 0, 2, 1, 1),
    Sketcher.Constraint("Tangent", 1, 2, 2, 1),
    Sketcher.Constraint("Tangent", 2, 2, 3, 1),
    Sketcher.Constraint("Tangent", 3, 2, 0, 1),
    Sketcher.Constraint("Vertical", 0),
    Sketcher.Constraint("Vertical", 2),
    Sketcher.Constraint("PointOnObject", 1, 3, -2),
    Sketcher.Constraint("Radius", 1, Q("6.6 mm")),
    Sketcher.Constraint("DistanceY", 0, 1, 0, 2, Q("14 mm")),
    Sketcher.Constraint("DistanceY", 1, 3, -1, 1, Q("12.8 mm")),
])
pocket1 = body.newObject("PartDesign::Pocket", "Pocket")
pocket1.Profile = sketch16
pocket1.Type = "ThroughAll"

sketch17 = body.newObject("Sketcher::SketchObject", "Sketch016")
sketch17.AttachmentSupport = (doc.getObject("XY_Plane"), [""])
sketch17.MapMode = "FlatFace"
sketch17.AttachmentOffset = App.Placement(App.Vector(0, 0, 1.5), App.Rotation())
sketch17.addGeometry([
    Part.Circle(App.Vector(7.8, -6.4, 0), App.Vector(0, 0, 1), 1.6),
    Part.Circle(App.Vector(-7.8, -6.4, 0), App.Vector(0, 0, 1), 1.6),
    Part.Circle(App.Vector(-15.5, -19.8, 0), App.Vector(0, 0, 1), 1.6),
    Part.Circle(App.Vector(-7.8, -33.2, 0), App.Vector(0, 0, 1), 1.6),
    Part.Circle(App.Vector(7.8, -33.2, 0), App.Vector(0, 0, 1), 1.6),
    Part.Circle(App.Vector(15.5, -19.8, 0), App.Vector(0, 0, 1), 1.6),
], False)
sketch17.addConstraint([
    Sketcher.Constraint("Equal", 0, 1),
    Sketcher.Constraint("Equal", 1, 2),
    Sketcher.Constraint("Equal", 2, 3),
    Sketcher.Constraint("Equal", 3, 4),
    Sketcher.Constraint("Equal", 4, 5),
    Sketcher.Constraint("Symmetric", 0, 3, 1, 3, -2),
    Sketcher.Constraint("Symmetric", 3, 3, 4, 3, -2),
    Sketcher.Constraint("Symmetric", 2, 3, 5, 3, -2),
    Sketcher.Constraint("Vertical", 1, 3, 3, 3),
    Sketcher.Constraint("Diameter", 0, Q("3.2 mm")),
    Sketcher.Constraint("DistanceX", 2, 3, 5, 3, Q("31 mm")),
    Sketcher.Constraint("DistanceY", 2, 3, -1, 1, Q("19.8 mm")),
    Sketcher.Constraint("DistanceX", 1, 3, 0, 3, Q("15.5 mm")),
    Sketcher.Constraint("DistanceY", 0, 3, -1, 1, Q("6.3766 mm")),
    Sketcher.Constraint("DistanceY", 3, 3, -1, 1, Q("33.2234 mm")),
])
doc.recompute()
hole7 = body.newObject("PartDesign::Hole", "Hole006")
hole7.Profile = sketch17
hole7.ThreadType = "None"
hole7.Diameter = 3.2
hole7.DepthType = "ThroughAll"
doc.recompute()

fillet2 = body.newObject("PartDesign::Fillet", "Fillet001")
fillet2.Base = (hole7, edges_at(hole7, [
    (18.8, 0.75, -49.2),
    (-18.8, 0.75, -49.2),
    (-11.3, -0.8, -49.2),
    (11.3, -0.8, -49.2),
    (23.55, -9.5, -49.2),
    (-23.55, -9.5, -49.2),
    (18.8, -47.75, -9.5),
    (11.3, -46.2, -9.5),
    (-11.3, -46.2, -9.5),
    (-18.8, -47.75, -9.5),
    (11.3, -0.8, -3),
    (-11.3, -0.8, -3),
    (-11.3, -46.2, -3),
    (11.3, -46.2, -3),
]))
fillet2.Radius = 2
doc.recompute()

fillet3 = body.newObject("PartDesign::Fillet", "Fillet002")
fillet3.Base = (fillet2, edges_at(fillet2, [(23.55, -9.5, -9.5), (-23.55, -9.5, -9.5)]))
fillet3.Radius = 4
doc.recompute()

fillet4 = body.newObject("PartDesign::Fillet", "Fillet003")
fillet4.Base = (fillet3, edges_at(fillet3, [
    (10, 0.75, -7),
    (-10, 0.75, -7),
    (-10, 0.75, -22),
    (10, 0.75, -22),
    (10, 0.75, -28),
    (-10, 0.75, -28),
    (10, 0.75, -43),
    (-10, 0.75, -43),
]))
fillet4.Radius = 4

doc.recompute()
